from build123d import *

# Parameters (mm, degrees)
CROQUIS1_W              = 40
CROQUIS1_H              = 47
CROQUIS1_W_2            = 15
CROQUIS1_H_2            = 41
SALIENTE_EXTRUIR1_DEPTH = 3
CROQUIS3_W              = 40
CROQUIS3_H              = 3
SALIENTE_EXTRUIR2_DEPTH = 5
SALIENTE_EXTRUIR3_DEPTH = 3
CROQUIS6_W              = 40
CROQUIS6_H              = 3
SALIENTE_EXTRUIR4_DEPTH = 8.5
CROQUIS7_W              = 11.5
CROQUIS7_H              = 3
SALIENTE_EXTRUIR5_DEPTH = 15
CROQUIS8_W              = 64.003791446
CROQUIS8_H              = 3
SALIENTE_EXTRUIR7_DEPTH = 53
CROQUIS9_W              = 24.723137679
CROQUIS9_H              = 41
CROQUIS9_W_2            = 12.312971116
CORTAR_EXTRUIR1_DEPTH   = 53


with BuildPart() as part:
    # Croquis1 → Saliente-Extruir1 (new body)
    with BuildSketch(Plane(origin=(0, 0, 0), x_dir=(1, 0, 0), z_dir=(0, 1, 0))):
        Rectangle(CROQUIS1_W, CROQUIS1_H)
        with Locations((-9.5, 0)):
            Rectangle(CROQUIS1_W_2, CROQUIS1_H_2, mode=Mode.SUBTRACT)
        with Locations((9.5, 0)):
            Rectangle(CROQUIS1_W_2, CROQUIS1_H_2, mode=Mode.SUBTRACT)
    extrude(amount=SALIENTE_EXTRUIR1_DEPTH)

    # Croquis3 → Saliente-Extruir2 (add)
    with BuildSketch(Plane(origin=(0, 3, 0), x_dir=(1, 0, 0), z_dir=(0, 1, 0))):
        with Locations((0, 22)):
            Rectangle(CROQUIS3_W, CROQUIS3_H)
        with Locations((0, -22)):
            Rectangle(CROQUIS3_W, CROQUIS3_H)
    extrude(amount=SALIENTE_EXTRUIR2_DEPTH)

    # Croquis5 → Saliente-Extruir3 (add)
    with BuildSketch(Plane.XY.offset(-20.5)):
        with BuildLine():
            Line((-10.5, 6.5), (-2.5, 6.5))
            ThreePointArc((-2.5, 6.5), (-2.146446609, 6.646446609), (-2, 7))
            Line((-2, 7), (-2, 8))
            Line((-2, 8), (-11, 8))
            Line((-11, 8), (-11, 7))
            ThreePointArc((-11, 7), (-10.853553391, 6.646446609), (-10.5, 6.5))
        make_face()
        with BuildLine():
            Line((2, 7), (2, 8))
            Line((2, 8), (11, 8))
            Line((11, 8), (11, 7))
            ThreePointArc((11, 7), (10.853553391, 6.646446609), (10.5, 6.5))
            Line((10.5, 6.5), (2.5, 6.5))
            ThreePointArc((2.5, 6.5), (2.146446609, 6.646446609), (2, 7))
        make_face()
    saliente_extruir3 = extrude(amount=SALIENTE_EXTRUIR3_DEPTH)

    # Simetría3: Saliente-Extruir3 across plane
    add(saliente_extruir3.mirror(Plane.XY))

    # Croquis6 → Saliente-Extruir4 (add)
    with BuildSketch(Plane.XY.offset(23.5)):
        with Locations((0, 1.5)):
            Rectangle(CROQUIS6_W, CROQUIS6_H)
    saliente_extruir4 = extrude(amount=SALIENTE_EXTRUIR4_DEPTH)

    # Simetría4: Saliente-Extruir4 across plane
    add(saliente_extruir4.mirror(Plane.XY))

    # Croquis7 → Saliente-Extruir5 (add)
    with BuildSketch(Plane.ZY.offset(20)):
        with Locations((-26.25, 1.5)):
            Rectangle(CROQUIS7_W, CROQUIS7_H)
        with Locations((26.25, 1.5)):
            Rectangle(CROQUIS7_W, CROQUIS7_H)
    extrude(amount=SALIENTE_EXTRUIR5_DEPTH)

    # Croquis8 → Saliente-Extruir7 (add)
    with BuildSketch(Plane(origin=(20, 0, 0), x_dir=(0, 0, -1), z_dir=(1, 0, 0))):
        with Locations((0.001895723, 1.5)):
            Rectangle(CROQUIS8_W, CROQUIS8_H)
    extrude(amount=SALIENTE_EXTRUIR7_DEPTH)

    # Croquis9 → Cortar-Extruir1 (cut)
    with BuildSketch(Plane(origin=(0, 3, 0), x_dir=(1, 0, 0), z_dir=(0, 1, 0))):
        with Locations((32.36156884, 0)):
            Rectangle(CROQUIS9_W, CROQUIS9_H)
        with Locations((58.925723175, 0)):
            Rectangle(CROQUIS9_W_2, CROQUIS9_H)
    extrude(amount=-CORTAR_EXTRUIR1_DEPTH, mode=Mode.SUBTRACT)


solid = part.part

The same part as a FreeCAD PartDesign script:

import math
import FreeCAD as App
import Part
import Sketcher
from FreeCAD import Vector
Q = App.Units.Quantity


def add_polygon(sketch, points):
    """Adds a closed chain of lines whose ends are joined by coincident constraints."""
    first, n = sketch.GeometryCount, len(points)
    for a, b in zip(points, points[1:] + points[:1]):
        sketch.addGeometry(Part.LineSegment(App.Vector(*a, 0), App.Vector(*b, 0)), False)
    for i in range(n):
        sketch.addConstraint(Sketcher.Constraint("Coincident", first + i, 2, first + (i + 1) % n, 1))

doc = App.newDocument("Part")
body = doc.addObject("PartDesign::Body", "Body")

# Sketch on XZ plane
sketch1 = body.newObject("Sketcher::SketchObject", "Sketch")
sketch1.AttachmentSupport = (doc.getObject("XZ_Plane"), [""])
sketch1.MapMode = "FlatFace"
add_polygon(sketch1, [(-20, -23.5), (-20, 23.5), (20, 23.5), (20, -23.5)])  # lines 0-3
add_polygon(sketch1, [(-2, 20.5), (-17, 20.5), (-17, -20.5), (-2, -20.5)])  # lines 4-7
add_polygon(sketch1, [(17, 20.5), (2, 20.5), (2, -20.5), (17, -20.5)])  # lines 8-11
sketch1.addConstraint([
    Sketcher.Constraint("Vertical", 0),
    Sketcher.Constraint("Horizontal", 1),
    Sketcher.Constraint("Vertical", 2),
    Sketcher.Constraint("Horizontal", 3),
    Sketcher.Constraint("Horizontal", 4),
    Sketcher.Constraint("Vertical", 5),
    Sketcher.Constraint("Horizontal", 6),
    Sketcher.Constraint("Vertical", 7),
    Sketcher.Constraint("Horizontal", 8),
    Sketcher.Constraint("Vertical", 9),
    Sketcher.Constraint("Horizontal", 10),
    Sketcher.Constraint("Vertical", 11),
    Sketcher.Constraint("Symmetric", 0, 2, 2, 2, -1, 1),
    Sketcher.Constraint("Symmetric", 6, 2, 8, 2, -1, 1),
    Sketcher.Constraint("Symmetric", 4, 2, 10, 2, -1, 1),
    Sketcher.Constraint("Horizontal", 7, 2, 8, 2),
    Sketcher.Constraint("DistanceX", 1, 1, 1, 2, Q("40 mm")),
    Sketcher.Constraint("DistanceX", 4, 2, 4, 1, Q("15 mm")),
    Sketcher.Constraint("DistanceY", 0, 1, 0, 2, Q("47 mm")),
    Sketcher.Constraint("DistanceY", 5, 2, 5, 1, Q("41 mm")),
    Sketcher.Constraint("DistanceX", 4, 2, -1, 1, Q("17 mm")),
])
pad1 = body.newObject("PartDesign::Pad", "Pad")
pad1.Profile = sketch1
pad1.Length = 3
pad1.Reversed = True

# Sketch on XZ plane
sketch2 = body.newObject("Sketcher::SketchObject", "Sketch001")
sketch2.AttachmentSupport = (doc.getObject("XZ_Plane"), [""])
sketch2.MapMode = "FlatFace"
sketch2.AttachmentOffset = App.Placement(Vector(0, 0, -3), App.Rotation())
add_polygon(sketch2, [(-20, -23.5), (-20, -20.5), (20, -20.5), (20, -23.5)])  # lines 0-3
add_polygon(sketch2, [(-20, 20.5), (-20, 23.5), (20, 23.5), (20, 20.5)])  # lines 4-7
sketch2.addConstraint([
    Sketcher.Constraint("Vertical", 0),
    Sketcher.Constraint("Horizontal", 1),
    Sketcher.Constraint("Vertical", 2),
    Sketcher.Constraint("Horizontal", 3),
    Sketcher.Constraint("Vertical", 4),
    Sketcher.Constraint("Horizontal", 5),
    Sketcher.Constraint("Vertical", 6),
    Sketcher.Constraint("Horizontal", 7),
    Sketcher.Constraint("Symmetric", 2, 2, 4, 2, -1, 1),
    Sketcher.Constraint("Symmetric", 0, 2, 6, 2, -1, 1),
    Sketcher.Constraint("Vertical", 3, 2, 4, 2),
    Sketcher.Constraint("DistanceX", 1, 1, 1, 2, Q("40 mm")),
    Sketcher.Constraint("DistanceY", 0, 1, 0, 2, Q("3 mm")),
    Sketcher.Constraint("DistanceY", 0, 2, 4, 2, Q("44 mm")),
])
pad2 = body.newObject("PartDesign::Pad", "Pad001")
pad2.Profile = sketch2
pad2.Length = 5
pad2.Reversed = True

# Sketch on XY plane
sketch3 = body.newObject("Sketcher::SketchObject", "Sketch002")
sketch3.AttachmentSupport = (doc.getObject("XY_Plane"), [""])
sketch3.MapMode = "FlatFace"
sketch3.AttachmentOffset = App.Placement(Vector(0, 0, -20.5), App.Rotation())
sketch3.addGeometry([
    Part.LineSegment(Vector(-10.5, 6.5, 0), Vector(-2.5, 6.5, 0)),  # 0
    Part.ArcOfCircle(Part.Circle(Vector(-2.5, 7, 0), Vector(0, 0, 1), 0.5), math.radians(-90), math.radians(0)),  # 1
    Part.LineSegment(Vector(-2, 7, 0), Vector(-2, 8, 0)),  # 2
    Part.LineSegment(Vector(-2, 8, 0), Vector(-11, 8, 0)),  # 3
    Part.LineSegment(Vector(-11, 8, 0), Vector(-11, 7, 0)),  # 4
    Part.ArcOfCircle(Part.Circle(Vector(-10.5, 7, 0), Vector(0, 0, 1), 0.5), math.radians(180), math.radians(270)),  # 5
    Part.LineSegment(Vector(2, 8, 0), Vector(2, 7, 0)),  # 6
    Part.ArcOfCircle(Part.Circle(Vector(2.5, 7, 0), Vector(0, 0, 1), 0.5), math.radians(180), math.radians(270)),  # 7
    Part.LineSegment(Vector(2.5, 6.5, 0), Vector(10.5, 6.5, 0)),  # 8
    Part.ArcOfCircle(Part.Circle(Vector(10.5, 7, 0), Vector(0, 0, 1), 0.5), math.radians(-90), math.radians(0)),  # 9
    Part.LineSegment(Vector(11, 7, 0), Vector(11, 8, 0)),  # 10
    Part.LineSegment(Vector(11, 8, 0), Vector(2, 8, 0)),  # 11
], False)
sketch3.addConstraint([
    Sketcher.Constraint("Tangent", 0, 2, 1, 1),
    Sketcher.Constraint("Tangent", 1, 2, 2, 1),
    Sketcher.Constraint("Coincident", 2, 2, 3, 1),
    Sketcher.Constraint("Coincident", 3, 2, 4, 1),
    Sketcher.Constraint("Tangent", 4, 2, 5, 1),
    Sketcher.Constraint("Tangent", 5, 2, 0, 1),
    Sketcher.Constraint("Tangent", 6, 2, 7, 1),
    Sketcher.Constraint("Tangent", 7, 2, 8, 1),
    Sketcher.Constraint("Tangent", 8, 2, 9, 1),
    Sketcher.Constraint("Tangent", 9, 2, 10, 1),
    Sketcher.Constraint("Coincident", 10, 2, 11, 1),
    Sketcher.Constraint("Coincident", 11, 2, 6, 1),
    Sketcher.Constraint("Horizontal", 0),
    Sketcher.Constraint("Vertical", 2),
    Sketcher.Constraint("Horizontal", 3),
    Sketcher.Constraint("Vertical", 4),
    Sketcher.Constraint("Vertical", 6),
    Sketcher.Constraint("Horizontal", 8),
    Sketcher.Constraint("Vertical", 10),
    Sketcher.Constraint("Horizontal", 11),
    Sketcher.Constraint("Equal", 1, 5),
    Sketcher.Constraint("Equal", 5, 7),
    Sketcher.Constraint("Equal", 7, 9),
    Sketcher.Constraint("Symmetric", 1, 3, 7, 3, -2),
    Sketcher.Constraint("Symmetric", 3, 2, 10, 2, -2),
    Sketcher.Constraint("Radius", 1, Q("0.5 mm")),
    Sketcher.Constraint("DistanceX", 0, 1, 0, 2, Q("8 mm")),
    Sketcher.Constraint("DistanceY", 2, 1, 2, 2, Q("1 mm")),
    Sketcher.Constraint("DistanceY", -1, 1, 1, 3, Q("7 mm")),
    Sketcher.Constraint("DistanceX", 1, 2, -1, 1, Q("2 mm")),
])
pad3 = body.newObject("PartDesign::Pad", "Pad002")
pad3.Profile = sketch3
pad3.Length = 3
doc.recompute()

mirrored = body.newObject("PartDesign::Mirrored", "Mirrored")
mirrored.Originals = [pad3]
mirrored.MirrorPlane = (doc.getObject("XY_Plane"), [""])
body.Tip = mirrored

# Sketch on XY plane
sketch4 = body.newObject("Sketcher::SketchObject", "Sketch003")
sketch4.AttachmentSupport = (doc.getObject("XY_Plane"), [""])
sketch4.MapMode = "FlatFace"
sketch4.AttachmentOffset = App.Placement(Vector(0, 0, 23.5), App.Rotation())
add_polygon(sketch4, [(-20, 3), (-20, 0), (20, 0), (20, 3)])  # lines 0-3
sketch4.addConstraint([
    Sketcher.Constraint("Vertical", 0),
    Sketcher.Constraint("Horizontal", 1),
    Sketcher.Constraint("Vertical", 2),
    Sketcher.Constraint("Horizontal", 3),
    Sketcher.Constraint("Symmetric", 0, 2, 1, 2, -1, 1),
    Sketcher.Constraint("DistanceX", 1, 1, 1, 2, Q("40 mm")),
    Sketcher.Constraint("DistanceY", 0, 2, 0, 1, Q("3 mm")),
])
pad4 = body.newObject("PartDesign::Pad", "Pad003")
pad4.Profile = sketch4
pad4.Length = 8.5
doc.recompute()

mirrored2 = body.newObject("PartDesign::Mirrored", "Mirrored001")
mirrored2.Originals = [pad4]
mirrored2.MirrorPlane = (doc.getObject("XY_Plane"), [""])
body.Tip = mirrored2

# Sketch on YZ plane
sketch5 = body.newObject("Sketcher::SketchObject", "Sketch004")
sketch5.AttachmentSupport = (doc.getObject("YZ_Plane"), [""])
sketch5.MapMode = "FlatFace"
sketch5.AttachmentOffset = App.Placement(Vector(0, 0, -20), App.Rotation())
add_polygon(sketch5, [(3, -32), (0, -32), (0, -20.5), (3, -20.5)])  # lines 0-3
add_polygon(sketch5, [(3, 20.5), (0, 20.5), (0, 32), (3, 32)])  # lines 4-7
sketch5.addConstraint([
    Sketcher.Constraint("Horizontal", 0),
    Sketcher.Constraint("Vertical", 1),
    Sketcher.Constraint("Horizontal", 2),
    Sketcher.Constraint("Vertical", 3),
    Sketcher.Constraint("Horizontal", 4),
    Sketcher.Constraint("Vertical", 5),
    Sketcher.Constraint("Horizontal", 6),
    Sketcher.Constraint("Vertical", 7),
    Sketcher.Constraint("Symmetric", 1, 2, 4, 2, -1, 1),
    Sketcher.Constraint("Symmetric", 0, 2, 5, 2, -1),
    Sketcher.Constraint("Vertical", 3, 2, 6, 2),
    Sketcher.Constraint("DistanceX", 0, 2, 0, 1, Q("3 mm")),
    Sketcher.Constraint("DistanceY", 1, 1, 1, 2, Q("11.5 mm")),
    Sketcher.Constraint("DistanceY", 0, 2, -1, 1, Q("32 mm")),
])
pad5 = body.newObject("PartDesign::Pad", "Pad004")
pad5.Profile = sketch5
pad5.Length = 15
pad5.Reversed = True

# Sketch on YZ plane
sketch6 = body.newObject("Sketcher::SketchObject", "Sketch005")
sketch6.AttachmentSupport = (doc.getObject("YZ_Plane"), [""])
sketch6.MapMode = "FlatFace"
sketch6.AttachmentOffset = App.Placement(Vector(0, 0, 20), App.Rotation())
add_polygon(sketch6, [(3, 32), (0, 32), (0, -32.003791), (3, -32.003791)])  # lines 0-3
sketch6.addConstraint([
    Sketcher.Constraint("Horizontal", 0),
    Sketcher.Constraint("Vertical", 1),
    Sketcher.Constraint("Horizontal", 2),
    Sketcher.Constraint("Vertical", 3),
    Sketcher.Constraint("PointOnObject", 0, 2, -2),
    Sketcher.Constraint("DistanceX", 0, 2, 0, 1, Q("3 mm")),
    Sketcher.Constraint("DistanceY", -1, 1, 0, 2, Q("32 mm")),
    Sketcher.Constraint("DistanceY", 1, 2, 1, 1, Q("64.003791 mm")),
])
pad6 = body.newObject("PartDesign::Pad", "Pad005")
pad6.Profile = sketch6
pad6.Length = 53

# Sketch on XZ plane
sketch7 = body.newObject("Sketcher::SketchObject", "Sketch006")
sketch7.AttachmentSupport = (doc.getObject("XZ_Plane"), [""])
sketch7.MapMode = "FlatFace"
sketch7.AttachmentOffset = App.Placement(Vector(0, 0, -3), App.Rotation())
add_polygon(sketch7, [(20, -20.5), (20, 20.5), (44.723138, 20.5), (44.723138, -20.5)])  # lines 0-3
add_polygon(sketch7, [(52.769238, -20.5), (52.769238, 20.5), (65.082209, 20.5), (65.082209, -20.5)])  # lines 4-7
sketch7.addConstraint([
    Sketcher.Constraint("Vertical", 0),
    Sketcher.Constraint("Horizontal", 1),
    Sketcher.Constraint("Vertical", 2),
    Sketcher.Constraint("Horizontal", 3),
    Sketcher.Constraint("Vertical", 4),
    Sketcher.Constraint("Horizontal", 5),
    Sketcher.Constraint("Vertical", 6),
    Sketcher.Constraint("Horizontal", 7),
    Sketcher.Constraint("Horizontal", 1, 2, 4, 2),
    Sketcher.Constraint("Horizontal", 3, 2, 6, 2),
    Sketcher.Constraint("DistanceY", 0, 1, 0, 2, Q("41 mm")),
    Sketcher.Constraint("DistanceX", -1, 1, 0, 2, Q("20 mm")),
    Sketcher.Constraint("DistanceY", -1, 1, 0, 2, Q("20.5 mm")),
    Sketcher.Constraint("DistanceX", 5, 1, 5, 2, Q("12.312971 mm")),
    Sketcher.Constraint("DistanceX", 1, 2, 4, 2, Q("8.0461 mm")),
    Sketcher.Constraint("DistanceX", 1, 1, 1, 2, Q("24.723138 mm")),
])
pocket1 = body.newObject("PartDesign::Pocket", "Pocket")
pocket1.Profile = sketch7
pocket1.Length = 53
pocket1.Reversed = True

doc.recompute()
